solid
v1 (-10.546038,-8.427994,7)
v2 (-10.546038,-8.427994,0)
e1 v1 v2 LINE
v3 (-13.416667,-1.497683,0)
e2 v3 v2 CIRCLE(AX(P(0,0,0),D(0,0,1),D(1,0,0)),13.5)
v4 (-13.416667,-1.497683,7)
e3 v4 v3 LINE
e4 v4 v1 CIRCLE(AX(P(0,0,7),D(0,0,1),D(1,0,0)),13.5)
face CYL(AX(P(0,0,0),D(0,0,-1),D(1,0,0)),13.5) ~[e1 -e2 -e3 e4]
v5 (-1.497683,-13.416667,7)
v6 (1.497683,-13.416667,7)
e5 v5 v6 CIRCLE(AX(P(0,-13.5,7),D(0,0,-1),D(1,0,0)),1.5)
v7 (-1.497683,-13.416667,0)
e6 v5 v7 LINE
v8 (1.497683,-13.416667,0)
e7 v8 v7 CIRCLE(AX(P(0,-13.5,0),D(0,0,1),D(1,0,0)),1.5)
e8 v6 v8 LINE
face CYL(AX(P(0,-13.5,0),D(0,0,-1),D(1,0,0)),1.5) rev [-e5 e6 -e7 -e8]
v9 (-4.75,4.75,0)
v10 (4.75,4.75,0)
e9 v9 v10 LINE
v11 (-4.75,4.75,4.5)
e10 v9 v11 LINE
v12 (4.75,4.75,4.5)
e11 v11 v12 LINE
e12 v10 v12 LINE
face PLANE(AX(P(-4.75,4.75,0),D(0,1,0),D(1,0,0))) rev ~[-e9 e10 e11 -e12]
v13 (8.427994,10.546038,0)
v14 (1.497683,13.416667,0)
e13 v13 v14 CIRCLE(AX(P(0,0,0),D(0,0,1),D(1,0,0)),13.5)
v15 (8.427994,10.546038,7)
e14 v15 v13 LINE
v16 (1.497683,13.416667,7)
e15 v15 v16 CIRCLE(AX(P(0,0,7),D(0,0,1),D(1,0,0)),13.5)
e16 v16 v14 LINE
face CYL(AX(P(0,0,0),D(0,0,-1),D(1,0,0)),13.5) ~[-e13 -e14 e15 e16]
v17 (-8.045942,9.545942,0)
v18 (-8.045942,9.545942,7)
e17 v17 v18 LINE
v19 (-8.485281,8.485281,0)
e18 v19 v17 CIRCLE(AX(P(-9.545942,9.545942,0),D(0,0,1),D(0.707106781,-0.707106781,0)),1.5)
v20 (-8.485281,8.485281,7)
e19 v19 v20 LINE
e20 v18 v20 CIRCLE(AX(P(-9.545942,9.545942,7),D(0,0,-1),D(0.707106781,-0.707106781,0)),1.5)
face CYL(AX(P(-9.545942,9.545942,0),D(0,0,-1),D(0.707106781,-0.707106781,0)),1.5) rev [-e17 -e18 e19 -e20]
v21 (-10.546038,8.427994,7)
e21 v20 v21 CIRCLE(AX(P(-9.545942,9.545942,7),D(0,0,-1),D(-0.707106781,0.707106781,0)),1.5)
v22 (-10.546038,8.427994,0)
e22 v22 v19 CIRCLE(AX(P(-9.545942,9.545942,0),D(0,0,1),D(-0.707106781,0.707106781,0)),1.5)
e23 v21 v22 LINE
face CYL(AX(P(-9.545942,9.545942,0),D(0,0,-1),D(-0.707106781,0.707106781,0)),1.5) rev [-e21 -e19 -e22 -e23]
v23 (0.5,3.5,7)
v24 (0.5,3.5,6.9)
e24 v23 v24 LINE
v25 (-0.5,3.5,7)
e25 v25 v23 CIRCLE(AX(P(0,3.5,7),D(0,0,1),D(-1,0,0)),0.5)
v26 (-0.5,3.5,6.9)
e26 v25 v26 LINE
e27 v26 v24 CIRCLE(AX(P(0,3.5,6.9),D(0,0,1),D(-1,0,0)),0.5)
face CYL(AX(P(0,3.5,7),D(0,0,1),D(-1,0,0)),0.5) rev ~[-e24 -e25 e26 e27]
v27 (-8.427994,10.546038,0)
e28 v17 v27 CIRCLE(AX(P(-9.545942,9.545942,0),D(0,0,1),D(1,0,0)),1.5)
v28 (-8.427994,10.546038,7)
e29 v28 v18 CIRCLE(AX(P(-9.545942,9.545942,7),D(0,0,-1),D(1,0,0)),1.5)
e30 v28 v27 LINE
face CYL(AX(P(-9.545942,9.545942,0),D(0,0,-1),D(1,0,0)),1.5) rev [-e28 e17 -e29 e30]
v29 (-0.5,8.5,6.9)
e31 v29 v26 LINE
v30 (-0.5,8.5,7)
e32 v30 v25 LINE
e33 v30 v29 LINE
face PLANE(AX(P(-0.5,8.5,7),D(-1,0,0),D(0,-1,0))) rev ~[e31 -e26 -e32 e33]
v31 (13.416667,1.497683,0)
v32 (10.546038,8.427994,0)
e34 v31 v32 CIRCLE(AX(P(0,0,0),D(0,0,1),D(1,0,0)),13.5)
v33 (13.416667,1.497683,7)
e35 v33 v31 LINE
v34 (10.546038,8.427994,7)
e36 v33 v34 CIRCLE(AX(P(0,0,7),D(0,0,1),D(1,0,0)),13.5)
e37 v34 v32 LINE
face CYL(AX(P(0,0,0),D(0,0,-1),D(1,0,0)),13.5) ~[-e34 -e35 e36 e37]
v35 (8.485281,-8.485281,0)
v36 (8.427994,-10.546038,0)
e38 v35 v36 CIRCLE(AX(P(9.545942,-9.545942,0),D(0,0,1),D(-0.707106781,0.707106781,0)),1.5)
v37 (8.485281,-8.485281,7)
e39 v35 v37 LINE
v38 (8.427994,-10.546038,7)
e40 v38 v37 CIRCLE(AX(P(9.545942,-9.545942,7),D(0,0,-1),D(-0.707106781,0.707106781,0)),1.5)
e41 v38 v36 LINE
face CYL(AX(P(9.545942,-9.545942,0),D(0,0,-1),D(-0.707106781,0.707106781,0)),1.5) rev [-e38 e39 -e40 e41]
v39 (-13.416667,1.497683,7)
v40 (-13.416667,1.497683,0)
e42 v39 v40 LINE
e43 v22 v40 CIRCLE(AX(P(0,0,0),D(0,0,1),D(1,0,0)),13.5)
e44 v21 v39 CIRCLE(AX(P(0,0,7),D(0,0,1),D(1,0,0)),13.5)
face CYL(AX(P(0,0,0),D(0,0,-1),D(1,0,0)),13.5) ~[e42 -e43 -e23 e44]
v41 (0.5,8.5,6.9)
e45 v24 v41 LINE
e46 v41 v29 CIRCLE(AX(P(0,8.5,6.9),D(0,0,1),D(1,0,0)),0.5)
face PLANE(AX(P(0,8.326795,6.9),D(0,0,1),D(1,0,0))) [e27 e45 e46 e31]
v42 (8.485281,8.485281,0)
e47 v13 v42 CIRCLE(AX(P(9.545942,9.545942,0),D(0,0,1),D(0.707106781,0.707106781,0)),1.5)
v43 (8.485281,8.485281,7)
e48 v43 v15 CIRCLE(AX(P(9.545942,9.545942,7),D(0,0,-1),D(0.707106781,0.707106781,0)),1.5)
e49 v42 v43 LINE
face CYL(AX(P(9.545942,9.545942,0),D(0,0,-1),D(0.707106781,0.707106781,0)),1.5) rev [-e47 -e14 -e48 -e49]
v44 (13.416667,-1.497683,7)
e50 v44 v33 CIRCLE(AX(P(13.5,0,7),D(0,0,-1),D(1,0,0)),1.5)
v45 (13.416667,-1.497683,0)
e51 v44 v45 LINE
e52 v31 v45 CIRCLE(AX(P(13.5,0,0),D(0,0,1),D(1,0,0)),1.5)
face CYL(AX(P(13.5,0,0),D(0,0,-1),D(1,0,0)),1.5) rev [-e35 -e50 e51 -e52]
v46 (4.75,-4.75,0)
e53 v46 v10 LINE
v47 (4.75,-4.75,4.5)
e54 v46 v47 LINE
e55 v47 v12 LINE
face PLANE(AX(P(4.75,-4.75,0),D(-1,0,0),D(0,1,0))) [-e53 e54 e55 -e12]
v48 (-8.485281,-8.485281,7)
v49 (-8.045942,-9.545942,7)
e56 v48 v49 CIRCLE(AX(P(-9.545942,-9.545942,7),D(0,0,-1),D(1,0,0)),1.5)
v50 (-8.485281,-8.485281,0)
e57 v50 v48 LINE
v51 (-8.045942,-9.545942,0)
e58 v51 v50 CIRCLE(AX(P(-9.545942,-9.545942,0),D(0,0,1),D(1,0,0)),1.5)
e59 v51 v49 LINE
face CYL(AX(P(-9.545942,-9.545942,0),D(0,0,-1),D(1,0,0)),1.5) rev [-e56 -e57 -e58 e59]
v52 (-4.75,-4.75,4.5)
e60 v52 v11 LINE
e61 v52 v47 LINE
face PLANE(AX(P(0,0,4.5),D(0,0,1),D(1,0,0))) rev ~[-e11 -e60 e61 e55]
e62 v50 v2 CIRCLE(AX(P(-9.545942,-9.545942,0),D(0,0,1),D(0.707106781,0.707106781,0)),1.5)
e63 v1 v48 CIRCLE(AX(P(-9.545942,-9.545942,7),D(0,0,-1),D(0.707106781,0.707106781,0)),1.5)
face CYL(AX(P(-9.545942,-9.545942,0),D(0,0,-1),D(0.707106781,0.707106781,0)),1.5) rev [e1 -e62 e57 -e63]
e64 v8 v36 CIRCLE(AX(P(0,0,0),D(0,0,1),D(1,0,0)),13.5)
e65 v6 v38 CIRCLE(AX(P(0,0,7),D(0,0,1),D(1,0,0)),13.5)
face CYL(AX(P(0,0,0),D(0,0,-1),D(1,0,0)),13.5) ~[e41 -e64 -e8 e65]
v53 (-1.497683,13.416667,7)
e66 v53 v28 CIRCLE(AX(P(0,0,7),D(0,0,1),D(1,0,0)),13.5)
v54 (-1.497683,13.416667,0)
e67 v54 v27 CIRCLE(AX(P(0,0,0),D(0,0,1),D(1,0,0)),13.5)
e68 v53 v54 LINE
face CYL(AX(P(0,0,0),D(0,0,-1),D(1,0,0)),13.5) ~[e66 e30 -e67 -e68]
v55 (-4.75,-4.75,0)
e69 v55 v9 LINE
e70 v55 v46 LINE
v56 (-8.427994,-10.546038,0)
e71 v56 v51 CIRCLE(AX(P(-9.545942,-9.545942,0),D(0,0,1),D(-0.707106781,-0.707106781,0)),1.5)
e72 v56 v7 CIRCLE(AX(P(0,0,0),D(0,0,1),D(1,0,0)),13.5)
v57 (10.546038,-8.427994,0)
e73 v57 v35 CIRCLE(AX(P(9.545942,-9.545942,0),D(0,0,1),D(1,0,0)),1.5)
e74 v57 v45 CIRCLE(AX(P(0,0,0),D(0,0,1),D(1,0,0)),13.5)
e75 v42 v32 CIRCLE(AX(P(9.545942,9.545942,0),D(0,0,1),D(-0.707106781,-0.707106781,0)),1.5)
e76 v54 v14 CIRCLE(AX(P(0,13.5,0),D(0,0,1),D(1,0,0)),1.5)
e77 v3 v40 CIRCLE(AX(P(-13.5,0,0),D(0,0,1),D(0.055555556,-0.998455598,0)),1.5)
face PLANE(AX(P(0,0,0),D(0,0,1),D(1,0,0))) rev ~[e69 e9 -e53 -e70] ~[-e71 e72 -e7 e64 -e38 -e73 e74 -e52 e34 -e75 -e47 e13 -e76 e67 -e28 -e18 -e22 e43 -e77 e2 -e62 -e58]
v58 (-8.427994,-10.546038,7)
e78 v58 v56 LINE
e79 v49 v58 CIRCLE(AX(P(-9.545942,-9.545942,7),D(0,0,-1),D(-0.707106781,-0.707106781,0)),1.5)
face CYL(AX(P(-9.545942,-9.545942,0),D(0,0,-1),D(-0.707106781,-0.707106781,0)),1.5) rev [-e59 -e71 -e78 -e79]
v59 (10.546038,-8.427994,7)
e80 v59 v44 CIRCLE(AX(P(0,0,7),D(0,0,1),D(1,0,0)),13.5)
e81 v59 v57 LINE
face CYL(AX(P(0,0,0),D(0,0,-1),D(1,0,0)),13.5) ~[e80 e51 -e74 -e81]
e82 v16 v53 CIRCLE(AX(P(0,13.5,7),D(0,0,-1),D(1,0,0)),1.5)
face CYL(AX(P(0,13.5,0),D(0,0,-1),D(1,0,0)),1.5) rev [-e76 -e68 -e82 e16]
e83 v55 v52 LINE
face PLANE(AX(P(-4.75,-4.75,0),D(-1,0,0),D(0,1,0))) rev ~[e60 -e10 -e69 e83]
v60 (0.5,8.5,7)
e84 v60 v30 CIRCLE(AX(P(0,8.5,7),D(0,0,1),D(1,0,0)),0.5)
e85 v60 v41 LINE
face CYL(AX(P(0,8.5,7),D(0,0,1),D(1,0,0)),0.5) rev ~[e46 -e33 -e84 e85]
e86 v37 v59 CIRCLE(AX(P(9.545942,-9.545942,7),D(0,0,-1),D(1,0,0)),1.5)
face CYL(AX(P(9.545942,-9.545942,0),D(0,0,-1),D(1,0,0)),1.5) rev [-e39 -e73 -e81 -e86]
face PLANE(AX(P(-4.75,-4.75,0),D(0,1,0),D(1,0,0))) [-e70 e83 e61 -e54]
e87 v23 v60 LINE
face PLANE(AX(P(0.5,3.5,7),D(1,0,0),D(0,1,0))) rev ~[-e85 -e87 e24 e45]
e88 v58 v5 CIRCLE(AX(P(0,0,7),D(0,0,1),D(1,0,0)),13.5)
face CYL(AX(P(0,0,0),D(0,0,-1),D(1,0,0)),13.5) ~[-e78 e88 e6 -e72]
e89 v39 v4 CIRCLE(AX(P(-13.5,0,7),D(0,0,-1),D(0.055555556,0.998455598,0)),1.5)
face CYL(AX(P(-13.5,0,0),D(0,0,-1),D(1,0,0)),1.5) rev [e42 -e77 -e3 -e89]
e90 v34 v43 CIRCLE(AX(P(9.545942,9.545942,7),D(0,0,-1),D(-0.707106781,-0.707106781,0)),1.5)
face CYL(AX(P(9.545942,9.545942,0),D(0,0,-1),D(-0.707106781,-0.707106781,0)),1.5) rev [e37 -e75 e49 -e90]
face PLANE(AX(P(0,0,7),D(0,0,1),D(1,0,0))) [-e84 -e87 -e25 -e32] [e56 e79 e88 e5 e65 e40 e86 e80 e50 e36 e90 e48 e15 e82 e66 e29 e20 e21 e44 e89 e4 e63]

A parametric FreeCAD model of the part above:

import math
import FreeCAD as App
import Part
import Sketcher
from FreeCAD import Vector
Q = App.Units.Quantity

doc = App.newDocument("Part")
body = doc.addObject("PartDesign::Body", "Body")

# Sketch on XY plane
sketch1 = body.newObject("Sketcher::SketchObject", "Sketch")
sketch1.AttachmentSupport = (doc.getObject("XY_Plane"), [""])
sketch1.MapMode = "FlatFace"
sketch1.addGeometry(Part.Circle(Vector(0, 0, 0), Vector(0, 0, 1), 13.5), False)
sketch1.addConstraint([
    Sketcher.Constraint("Coincident", 0, 3, -1, 1),
    Sketcher.Constraint("Diameter", 0, Q("27 mm")),
])
pad1 = body.newObject("PartDesign::Pad", "Pad")
pad1.Profile = sketch1
pad1.Length = 7

# Sketch on XY plane
sketch2 = body.newObject("Sketcher::SketchObject", "Sketch001")
sketch2.AttachmentSupport = (doc.getObject("XY_Plane"), [""])
sketch2.MapMode = "FlatFace"
sketch2.addGeometry([
    Part.LineSegment(Vector(-4.75, 4.75, 0), Vector(-4.75, -4.75, 0)),
    Part.LineSegment(Vector(-4.75, -4.75, 0), Vector(4.75, -4.75, 0)),
    Part.LineSegment(Vector(4.75, -4.75, 0), Vector(4.75, 4.75, 0)),
    Part.LineSegment(Vector(4.75, 4.75, 0), Vector(-4.75, 4.75, 0)),
], False)
sketch2.addConstraint([
    Sketcher.Constraint("Coincident", 0, 2, 1, 1),
    Sketcher.Constraint("Coincident", 1, 2, 2, 1),
    Sketcher.Constraint("Coincident", 2, 2, 3, 1),
    Sketcher.Constraint("Coincident", 3, 2, 0, 1),
    Sketcher.Constraint("Vertical", 0),
    Sketcher.Constraint("Horizontal", 1),
    Sketcher.Constraint("Vertical", 2),
    Sketcher.Constraint("Horizontal", 3),
    Sketcher.Constraint("Symmetric", 0, 2, 2, 2, -1, 1),
    Sketcher.Constraint("Equal", 3, 0),
    Sketcher.Constraint("DistanceX", 1, 1, 1, 2, Q("9.5 mm")),
])
pocket1 = body.newObject("PartDesign::Pocket", "Pocket")
pocket1.Profile = sketch2
pocket1.Length = 4.5
pocket1.Reversed = True

# Sketch on XY plane
sketch3 = body.newObject("Sketcher::SketchObject", "Sketch002")
sketch3.AttachmentSupport = (doc.getObject("XY_Plane"), [""])
sketch3.MapMode = "FlatFace"
sketch3.addGeometry([
    Part.Circle(Vector(13.5, 0, 0), Vector(0, 0, 1), 1.5),  # 0
    Part.Circle(Vector(-13.5, 0, 0), Vector(0, 0, 1), 1.5),  # 1
    Part.Circle(Vector(0, -13.5, 0), Vector(0, 0, 1), 1.5),  # 2
    Part.Circle(Vector(0, 13.5, 0), Vector(0, 0, 1), 1.5),  # 3
    Part.ArcOfCircle(Part.Circle(Vector(-9.545942, 9.545942, 0), Vector(0, 0, 1), 1.5), math.radians(0), math.radians(135)),  # 4
    Part.ArcOfCircle(Part.Circle(Vector(-9.545942, 9.545942, 0), Vector(0, 0, 1), 1.5), math.radians(135), math.radians(315)),  # 5
    Part.ArcOfCircle(Part.Circle(Vector(-9.545942, 9.545942, 0), Vector(0, 0, 1), 1.5), math.radians(-45), math.radians(0)),  # 6
    Part.ArcOfCircle(Part.Circle(Vector(9.545942, 9.545942, 0), Vector(0, 0, 1), 1.5), math.radians(45), math.radians(225)),  # 7
    Part.ArcOfCircle(Part.Circle(Vector(9.545942, 9.545942, 0), Vector(0, 0, 1), 1.5), math.radians(-135), math.radians(0)),  # 8
    Part.ArcOfCircle(Part.Circle(Vector(9.545942, 9.545942, 0), Vector(0, 0, 1), 1.5), math.radians(0), math.radians(45)),  # 9
    Part.ArcOfCircle(Part.Circle(Vector(9.545942, -9.545942, 0), Vector(0, 0, 1), 1.5), math.radians(0), math.radians(135)),  # 10
    Part.ArcOfCircle(Part.Circle(Vector(9.545942, -9.545942, 0), Vector(0, 0, 1), 1.5), math.radians(135), math.radians(315)),  # 11
    Part.ArcOfCircle(Part.Circle(Vector(9.545942, -9.545942, 0), Vector(0, 0, 1), 1.5), math.radians(-45), math.radians(0)),  # 12
    Part.ArcOfCircle(Part.Circle(Vector(-9.545942, -9.545942, 0), Vector(0, 0, 1), 1.5), math.radians(0), math.radians(45)),  # 13
    Part.ArcOfCircle(Part.Circle(Vector(-9.545942, -9.545942, 0), Vector(0, 0, 1), 1.5), math.radians(45), math.radians(225)),  # 14
    Part.ArcOfCircle(Part.Circle(Vector(-9.545942, -9.545942, 0), Vector(0, 0, 1), 1.5), math.radians(-135), math.radians(0)),  # 15
], False)
sketch3.addConstraint([
    Sketcher.Constraint("Tangent", 4, 2, 5, 1),
    Sketcher.Constraint("Tangent", 5, 2, 6, 1),
    Sketcher.Constraint("Tangent", 6, 2, 4, 1),
    Sketcher.Constraint("Tangent", 7, 2, 8, 1),
    Sketcher.Constraint("Tangent", 8, 2, 9, 1),
    Sketcher.Constraint("Tangent", 9, 2, 7, 1),
    Sketcher.Constraint("Tangent", 10, 2, 11, 1),
    Sketcher.Constraint("Tangent", 11, 2, 12, 1),
    Sketcher.Constraint("Tangent", 12, 2, 10, 1),
    Sketcher.Constraint("Tangent", 13, 2, 14, 1),
    Sketcher.Constraint("Tangent", 14, 2, 15, 1),
    Sketcher.Constraint("Tangent", 15, 2, 13, 1),
    Sketcher.Constraint("Equal", 0, 1),
    Sketcher.Constraint("Equal", 1, 2),
    Sketcher.Constraint("Equal", 2, 3),
    Sketcher.Constraint("Equal", 3, 4),
    Sketcher.Constraint("Equal", 6, 7),
    Sketcher.Constraint("Equal", 9, 10),
    Sketcher.Constraint("Equal", 12, 13),
    Sketcher.Constraint("Symmetric", 0, 3, 1, 3, -1, 1),
    Sketcher.Constraint("Symmetric", 2, 3, 3, 3, -1, 1),
    Sketcher.Constraint("Symmetric", 4, 3, 10, 3, -1, 1),
    Sketcher.Constraint("Symmetric", 7, 3, 13, 3, -1, 1),
    Sketcher.Constraint("Symmetric", 4, 3, 7, 3, -2),
    Sketcher.Constraint("PointOnObject", 0, 3, -1),
    Sketcher.Constraint("PointOnObject", 2, 3, -2),
    Sketcher.Constraint("Horizontal", 9, 3, 6, 2),
    Sketcher.Constraint("Horizontal", 5, 2, 7, 2),
    Sketcher.Constraint("Horizontal", 6, 2, 8, 2),
    Sketcher.Constraint("Horizontal", 4, 2, 9, 2),
    Sketcher.Constraint("Horizontal", 15, 3, 12, 2),
    Sketcher.Constraint("Horizontal", 10, 2, 13, 2),
    Sketcher.Constraint("Horizontal", 11, 2, 14, 2),
    Sketcher.Constraint("Horizontal", 12, 2, 15, 2),
    Sketcher.Constraint("Vertical", 7, 2, 10, 2),
    Sketcher.Constraint("Vertical", 9, 2, 11, 2),
    Sketcher.Constraint("Diameter", 0, Q("3 mm")),
    Sketcher.Constraint("DistanceX", 1, 3, 0, 3, Q("27 mm")),
    Sketcher.Constraint("DistanceY", 2, 3, 3, 3, Q("27 mm")),
    Sketcher.Constraint("DistanceX", 4, 2, -1, 1, Q("10.606602 mm")),
    Sketcher.Constraint("DistanceY", -1, 1, 4, 2, Q("10.606602 mm")),
    Sketcher.Constraint("DistanceX", 4, 3, -1, 1, Q("9.545942 mm")),
    Sketcher.Constraint("DistanceX", 5, 2, -1, 1, Q("8.485281 mm")),
])
pocket2 = body.newObject("PartDesign::Pocket", "Pocket001")
pocket2.Profile = sketch3
pocket2.Length = 25.4
pocket2.Reversed = True

# Sketch on XY plane
sketch4 = body.newObject("Sketcher::SketchObject", "Sketch003")
sketch4.AttachmentSupport = (doc.getObject("XY_Plane"), [""])
sketch4.MapMode = "FlatFace"
sketch4.AttachmentOffset = App.Placement(Vector(0, 0, 7), App.Rotation())
sketch4.addGeometry([
    Part.ArcOfCircle(Part.Circle(Vector(0, 8.5, 0), Vector(0, 0, 1), 0.5), math.radians(0), math.radians(180)),
    Part.LineSegment(Vector(-0.5, 8.5, 0), Vector(-0.5, 3.5, 0)),
    Part.ArcOfCircle(Part.Circle(Vector(0, 3.5, 0), Vector(0, 0, 1), 0.5), math.radians(180), math.radians(360)),
    Part.LineSegment(Vector(0.5, 3.5, 0), Vector(0.5, 8.5, 0)),
], False)
sketch4.addConstraint([
    Sketcher.Constraint("Tangent", 0, 2, 1, 1),
    Sketcher.Constraint("Tangent", 1, 2, 2, 1),
    Sketcher.Constraint("Tangent", 2, 2, 3, 1),
    Sketcher.Constraint("Tangent", 3, 2, 0, 1),
    Sketcher.Constraint("Vertical", 1),
    Sketcher.Constraint("Vertical", 3),
    Sketcher.Constraint("PointOnObject", 0, 3, -2),
    Sketcher.Constraint("Radius", 0, Q("0.5 mm")),
    Sketcher.Constraint("DistanceY", 1, 2, 1, 1, Q("5 mm")),
    Sketcher.Constraint("DistanceY", -1, 1, 0, 3, Q("8.5 mm")),
])
pocket3 = body.newObject("PartDesign::Pocket", "Pocket002")
pocket3.Profile = sketch4
pocket3.Length = 0.1

doc.recompute()
